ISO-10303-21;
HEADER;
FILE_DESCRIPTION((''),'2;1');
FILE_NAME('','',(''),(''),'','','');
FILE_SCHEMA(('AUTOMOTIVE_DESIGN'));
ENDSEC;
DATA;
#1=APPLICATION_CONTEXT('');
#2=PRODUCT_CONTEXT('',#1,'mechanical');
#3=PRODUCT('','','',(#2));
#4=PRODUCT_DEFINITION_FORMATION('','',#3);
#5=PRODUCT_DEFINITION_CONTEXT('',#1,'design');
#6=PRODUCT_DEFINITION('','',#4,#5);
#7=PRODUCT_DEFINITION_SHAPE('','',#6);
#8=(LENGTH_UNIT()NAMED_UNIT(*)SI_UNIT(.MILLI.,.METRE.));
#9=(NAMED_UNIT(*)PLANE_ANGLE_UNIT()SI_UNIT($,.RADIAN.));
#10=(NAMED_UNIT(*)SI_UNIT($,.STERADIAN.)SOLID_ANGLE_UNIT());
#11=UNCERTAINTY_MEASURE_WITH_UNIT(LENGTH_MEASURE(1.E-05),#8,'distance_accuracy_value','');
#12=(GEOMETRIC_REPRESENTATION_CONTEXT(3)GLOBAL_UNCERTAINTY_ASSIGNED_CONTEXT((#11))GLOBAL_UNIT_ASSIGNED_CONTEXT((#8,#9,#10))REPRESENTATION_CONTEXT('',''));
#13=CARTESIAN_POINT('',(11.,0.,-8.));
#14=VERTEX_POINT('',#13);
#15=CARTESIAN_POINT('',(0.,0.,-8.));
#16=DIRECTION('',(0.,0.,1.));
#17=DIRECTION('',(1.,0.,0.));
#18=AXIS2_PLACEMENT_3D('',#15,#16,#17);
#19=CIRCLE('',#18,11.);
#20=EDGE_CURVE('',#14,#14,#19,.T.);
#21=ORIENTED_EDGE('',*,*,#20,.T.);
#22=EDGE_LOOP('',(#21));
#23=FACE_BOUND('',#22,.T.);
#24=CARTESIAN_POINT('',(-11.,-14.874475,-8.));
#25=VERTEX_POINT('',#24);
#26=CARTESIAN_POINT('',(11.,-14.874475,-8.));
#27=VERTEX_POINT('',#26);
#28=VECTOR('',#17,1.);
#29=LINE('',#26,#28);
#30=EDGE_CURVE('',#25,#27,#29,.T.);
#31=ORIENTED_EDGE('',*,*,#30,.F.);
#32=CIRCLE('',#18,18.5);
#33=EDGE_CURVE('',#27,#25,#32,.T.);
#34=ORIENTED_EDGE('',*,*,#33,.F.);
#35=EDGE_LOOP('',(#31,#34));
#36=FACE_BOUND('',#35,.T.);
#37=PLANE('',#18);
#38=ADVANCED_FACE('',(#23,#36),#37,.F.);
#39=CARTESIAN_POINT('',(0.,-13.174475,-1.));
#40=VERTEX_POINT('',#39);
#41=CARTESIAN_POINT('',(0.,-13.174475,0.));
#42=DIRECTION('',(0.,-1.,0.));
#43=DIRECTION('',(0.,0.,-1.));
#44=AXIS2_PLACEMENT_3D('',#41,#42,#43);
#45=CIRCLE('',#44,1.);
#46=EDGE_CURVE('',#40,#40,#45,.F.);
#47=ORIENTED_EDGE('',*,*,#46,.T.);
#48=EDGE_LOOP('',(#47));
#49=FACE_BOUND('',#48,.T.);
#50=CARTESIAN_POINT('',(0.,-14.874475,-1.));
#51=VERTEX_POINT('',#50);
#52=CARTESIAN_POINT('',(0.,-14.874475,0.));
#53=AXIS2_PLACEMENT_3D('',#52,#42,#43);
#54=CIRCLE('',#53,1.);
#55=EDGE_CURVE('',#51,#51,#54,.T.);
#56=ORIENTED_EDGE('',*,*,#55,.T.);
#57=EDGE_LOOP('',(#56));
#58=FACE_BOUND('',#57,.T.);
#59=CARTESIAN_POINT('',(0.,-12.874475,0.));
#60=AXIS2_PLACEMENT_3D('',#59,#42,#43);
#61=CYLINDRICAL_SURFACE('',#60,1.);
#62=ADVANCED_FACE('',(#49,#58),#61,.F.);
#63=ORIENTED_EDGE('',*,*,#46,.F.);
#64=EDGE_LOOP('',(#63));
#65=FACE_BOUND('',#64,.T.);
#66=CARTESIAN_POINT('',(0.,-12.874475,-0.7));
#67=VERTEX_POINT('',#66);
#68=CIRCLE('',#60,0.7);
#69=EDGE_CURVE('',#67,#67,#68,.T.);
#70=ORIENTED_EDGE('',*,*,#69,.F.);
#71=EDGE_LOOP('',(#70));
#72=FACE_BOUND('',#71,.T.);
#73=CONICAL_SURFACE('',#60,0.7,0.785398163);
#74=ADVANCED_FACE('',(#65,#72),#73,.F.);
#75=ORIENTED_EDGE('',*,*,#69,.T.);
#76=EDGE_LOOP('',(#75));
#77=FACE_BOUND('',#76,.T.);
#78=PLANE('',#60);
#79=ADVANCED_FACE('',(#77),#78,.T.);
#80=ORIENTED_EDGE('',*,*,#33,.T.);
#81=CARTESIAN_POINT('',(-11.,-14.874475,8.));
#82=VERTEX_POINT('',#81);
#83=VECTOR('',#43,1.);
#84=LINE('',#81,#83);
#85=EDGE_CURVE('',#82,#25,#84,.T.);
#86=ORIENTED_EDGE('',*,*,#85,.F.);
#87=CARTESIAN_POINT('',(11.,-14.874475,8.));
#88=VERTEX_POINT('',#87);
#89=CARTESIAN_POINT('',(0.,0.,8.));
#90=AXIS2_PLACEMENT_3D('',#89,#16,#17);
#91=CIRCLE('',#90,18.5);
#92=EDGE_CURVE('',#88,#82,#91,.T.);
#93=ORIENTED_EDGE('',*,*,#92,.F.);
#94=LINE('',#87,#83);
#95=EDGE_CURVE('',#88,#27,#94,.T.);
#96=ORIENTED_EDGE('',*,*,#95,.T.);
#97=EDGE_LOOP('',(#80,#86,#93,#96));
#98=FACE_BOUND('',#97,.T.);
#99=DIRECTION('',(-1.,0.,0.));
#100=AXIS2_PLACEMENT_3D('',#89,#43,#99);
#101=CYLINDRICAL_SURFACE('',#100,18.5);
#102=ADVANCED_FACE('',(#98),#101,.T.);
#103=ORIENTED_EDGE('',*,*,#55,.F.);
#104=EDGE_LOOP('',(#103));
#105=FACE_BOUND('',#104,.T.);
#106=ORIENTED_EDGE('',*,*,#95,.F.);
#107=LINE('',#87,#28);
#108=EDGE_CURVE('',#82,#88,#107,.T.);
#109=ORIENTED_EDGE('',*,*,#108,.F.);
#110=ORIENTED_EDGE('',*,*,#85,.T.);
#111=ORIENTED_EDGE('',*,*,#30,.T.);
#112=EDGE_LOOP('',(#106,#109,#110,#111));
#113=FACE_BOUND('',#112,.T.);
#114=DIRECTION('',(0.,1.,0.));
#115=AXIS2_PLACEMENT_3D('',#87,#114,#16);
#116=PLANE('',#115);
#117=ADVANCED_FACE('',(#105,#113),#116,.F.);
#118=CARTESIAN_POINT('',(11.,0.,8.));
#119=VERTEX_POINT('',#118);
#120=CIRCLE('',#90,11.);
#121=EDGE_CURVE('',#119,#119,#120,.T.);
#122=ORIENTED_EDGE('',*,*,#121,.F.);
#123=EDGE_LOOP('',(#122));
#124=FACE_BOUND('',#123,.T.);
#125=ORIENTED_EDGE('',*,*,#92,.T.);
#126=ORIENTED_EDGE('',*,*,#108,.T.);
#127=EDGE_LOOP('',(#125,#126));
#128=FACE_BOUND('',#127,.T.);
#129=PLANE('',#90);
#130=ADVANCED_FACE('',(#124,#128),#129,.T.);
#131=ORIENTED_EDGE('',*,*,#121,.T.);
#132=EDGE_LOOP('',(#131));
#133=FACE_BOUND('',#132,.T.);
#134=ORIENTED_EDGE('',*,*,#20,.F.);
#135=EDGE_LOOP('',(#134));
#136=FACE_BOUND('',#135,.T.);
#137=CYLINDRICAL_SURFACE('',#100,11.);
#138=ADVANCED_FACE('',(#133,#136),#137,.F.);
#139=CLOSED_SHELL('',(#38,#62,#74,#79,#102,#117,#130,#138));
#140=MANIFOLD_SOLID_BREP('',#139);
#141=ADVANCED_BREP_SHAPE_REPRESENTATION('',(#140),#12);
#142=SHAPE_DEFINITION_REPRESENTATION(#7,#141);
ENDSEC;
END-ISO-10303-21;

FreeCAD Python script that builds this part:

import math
import FreeCAD as App
import Part
import Sketcher

V = App.Vector


def edges_at(feature, points):
    """Names of the edges that pass closest to the given points."""
    edges = feature.Shape.Edges
    near = lambda p: min(range(len(edges)), key=lambda i: edges[i].distToShape(Part.Vertex(*p))[0])
    return sorted({f"Edge{near(p) + 1}" for p in points})

doc = App.newDocument("Part")
body = doc.addObject("PartDesign::Body", "Body")

# Sketch on XY plane
sketch1 = body.newObject("Sketcher::SketchObject", "Sketch")
sketch1.AttachmentSupport = (doc.getObject("XY_Plane"), [""])
sketch1.MapMode = "FlatFace"
sketch1.addGeometry(Part.Circle(V(0, 0, 0), V(0, 0, 1), 18.5), False)
sketch1.addGeometry(Part.Circle(V(0, 0, 0), V(0, 0, 1), 11), False)
sketch1.addConstraint(Sketcher.Constraint("Coincident", 0, 3, -1, 1))
sketch1.addConstraint(Sketcher.Constraint("Coincident", 1, 3, -1, 1))
sketch1.addConstraint(Sketcher.Constraint("Diameter", 0, 37.0))
sketch1.addConstraint(Sketcher.Constraint("Diameter", 1, 22.0))
pad1 = body.newObject("PartDesign::Pad", "Pad")
pad1.Profile = sketch1
pad1.Length = 16
pad1.Midplane = True

# Sketch on XY plane
sketch2 = body.newObject("Sketcher::SketchObject", "Sketch001")
sketch2.AttachmentSupport = (doc.getObject("XY_Plane"), [""])
sketch2.MapMode = "FlatFace"
sketch2.AttachmentOffset = App.Placement(V(0, 0, -8), App.Rotation())
sketch2.addGeometry(Part.LineSegment(V(-11, -14.874475, 0), V(11, -14.874475, 0)), False)
sketch2.addGeometry(Part.ArcOfCircle(Part.Circle(V(0, 0, 0), V(0, 0, 1), 18.5), math.radians(-126.483737), math.radians(-53.516263)), False)
sketch2.addConstraint(Sketcher.Constraint("Coincident", 0, 1, 1, 1))
sketch2.addConstraint(Sketcher.Constraint("Coincident", 1, 2, 0, 2))
sketch2.addConstraint(Sketcher.Constraint("Horizontal", 0))
sketch2.addConstraint(Sketcher.Constraint("Coincident", 1, 3, -1, 1))
sketch2.addConstraint(Sketcher.Constraint("Radius", 1, 18.5))
sketch2.addConstraint(Sketcher.Constraint("DistanceX", 0, 1, 0, 2, 22.0))
pocket1 = body.newObject("PartDesign::Pocket", "Pocket")
pocket1.Profile = sketch2
pocket1.Length = 16
pocket1.Reversed = True

# Sketch on XZ plane
sketch3 = body.newObject("Sketcher::SketchObject", "Sketch002")
sketch3.AttachmentSupport = (doc.getObject("XZ_Plane"), [""])
sketch3.MapMode = "FlatFace"
sketch3.AttachmentOffset = App.Placement(V(0, 0, 14.874475), App.Rotation())
sketch3.addGeometry(Part.Circle(V(0, 0, 0), V(0, 0, 1), 1), False)
sketch3.addConstraint(Sketcher.Constraint("Coincident", 0, 3, -1, 1))
sketch3.addConstraint(Sketcher.Constraint("Diameter", 0, 2.0))
pocket2 = body.newObject("PartDesign::Pocket", "Pocket001")
pocket2.Profile = sketch3
pocket2.Length = 2
doc.recompute()

chamfer = body.newObject("PartDesign::Chamfer", "Chamfer")
chamfer.Base = (pocket2, edges_at(pocket2, [(-1, -12.874, 0)]))
chamfer.Size = 0.3

doc.recompute()
